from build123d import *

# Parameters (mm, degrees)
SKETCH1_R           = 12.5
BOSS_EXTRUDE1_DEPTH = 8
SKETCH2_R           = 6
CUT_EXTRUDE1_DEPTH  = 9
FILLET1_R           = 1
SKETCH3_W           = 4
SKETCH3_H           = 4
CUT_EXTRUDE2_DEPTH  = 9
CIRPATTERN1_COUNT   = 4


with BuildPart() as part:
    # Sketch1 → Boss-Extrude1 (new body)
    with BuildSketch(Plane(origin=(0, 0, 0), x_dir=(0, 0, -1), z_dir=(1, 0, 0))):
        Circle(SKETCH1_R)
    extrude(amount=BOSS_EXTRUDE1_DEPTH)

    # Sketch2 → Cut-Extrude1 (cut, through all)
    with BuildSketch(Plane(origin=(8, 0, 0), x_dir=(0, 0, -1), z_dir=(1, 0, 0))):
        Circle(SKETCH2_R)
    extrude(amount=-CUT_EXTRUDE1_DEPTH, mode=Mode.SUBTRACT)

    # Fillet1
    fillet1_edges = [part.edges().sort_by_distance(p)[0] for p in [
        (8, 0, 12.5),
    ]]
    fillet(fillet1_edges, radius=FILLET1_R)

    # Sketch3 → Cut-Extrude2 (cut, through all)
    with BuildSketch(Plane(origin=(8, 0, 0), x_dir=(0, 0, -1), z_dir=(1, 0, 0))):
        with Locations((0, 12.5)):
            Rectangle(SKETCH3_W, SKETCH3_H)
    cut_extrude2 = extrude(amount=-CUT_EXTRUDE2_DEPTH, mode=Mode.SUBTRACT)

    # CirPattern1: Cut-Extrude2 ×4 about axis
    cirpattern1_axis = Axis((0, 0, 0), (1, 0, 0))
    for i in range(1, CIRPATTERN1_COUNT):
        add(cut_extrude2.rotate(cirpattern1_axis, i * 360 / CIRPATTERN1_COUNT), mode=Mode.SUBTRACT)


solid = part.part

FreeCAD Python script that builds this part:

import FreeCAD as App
import Part
import Sketcher

V = App.Vector


def edges_at(feature, points):
    """Names of the edges that pass closest to the given points."""
    edges = feature.Shape.Edges
    near = lambda p: min(range(len(edges)), key=lambda i: edges[i].distToShape(Part.Vertex(*p))[0])
    return sorted({f"Edge{near(p) + 1}" for p in points})

doc = App.newDocument("Part")
params = doc.addObject("Spreadsheet::Sheet", "Params")
for row, (alias, value) in enumerate([
    ("sketch1_diameter", "25 mm"),
    ("pad1_length", "8 mm"),
    ("sketch2_diameter", "12 mm"),
    ("fillet_radius", "1 mm"),
    ("sketch3_width", "4 mm"),
], start=1):
    params.set(f"A{row}", alias)
    params.set(f"B{row}", "=" + value)
    params.setAlias(f"B{row}", alias)

body = doc.addObject("PartDesign::Body", "Body")

# Sketch on YZ plane
sketch1 = doc.addObject("Sketcher::SketchObject", "Sketch")
body.addObject(sketch1)
sketch1.AttachmentSupport = (doc.YZ_Plane, [""])
sketch1.MapMode = "FlatFace"
sketch1.addGeometry(Part.Circle(V(0, 0, 0), V(0, 0, 1), 12), False)
sketch1.addConstraint([
    Sketcher.Constraint("Coincident", 0, 3, -1, 1),
    Sketcher.Constraint("Diameter", 0, 25.0),
])
sketch1.setExpression("Constraints[1]", "Params.sketch1_diameter")
pad1 = doc.addObject("PartDesign::Pad", "Pad")
body.addObject(pad1)
pad1.Profile = sketch1
pad1.setExpression("Length", "Params.pad1_length")

# Sketch on YZ plane
sketch2 = doc.addObject("Sketcher::SketchObject", "Sketch001")
body.addObject(sketch2)
sketch2.AttachmentSupport = (doc.YZ_Plane, [""])
sketch2.MapMode = "FlatFace"
sketch2.AttachmentOffset = App.Placement(V(0, 0, 8), App.Rotation())
sketch2.addGeometry(Part.Circle(V(0, 0, 0), V(0, 0, 1), 6), False)
sketch2.addConstraint([
    Sketcher.Constraint("Coincident", 0, 3, -1, 1),
    Sketcher.Constraint("Diameter", 0, 12.0),
])
sketch2.setExpression("Constraints[1]", "Params.sketch2_diameter")
pocket1 = doc.addObject("PartDesign::Pocket", "Pocket")
body.addObject(pocket1)
pocket1.Profile = sketch2
pocket1.Type = "ThroughAll"
doc.recompute()

fillet = doc.addObject("PartDesign::Fillet", "Fillet")
body.addObject(fillet)
fillet.Base = (pocket1, edges_at(pocket1, [(8, 0, 12.5)]))
fillet.setExpression("Radius", "Params.fillet_radius")

# Sketch on YZ plane
sketch3 = doc.addObject("Sketcher::SketchObject", "Sketch002")
body.addObject(sketch3)
sketch3.AttachmentSupport = (doc.YZ_Plane, [""])
sketch3.MapMode = "FlatFace"
sketch3.AttachmentOffset = App.Placement(V(0, 0, 8), App.Rotation())
sketch3.addGeometry([
    Part.LineSegment(V(14.5, 2, 0), V(10.5, 2, 0)),
    Part.LineSegment(V(10.5, 2, 0), V(10.5, -2, 0)),
    Part.LineSegment(V(10.5, -2, 0), V(14.5, -2, 0)),
    Part.LineSegment(V(14.5, -2, 0), V(14.5, 2, 0)),
], False)
sketch3.addConstraint([
    Sketcher.Constraint("Coincident", 0, 2, 1, 1),
    Sketcher.Constraint("Coincident", 1, 2, 2, 1),
    Sketcher.Constraint("Coincident", 2, 2, 3, 1),
    Sketcher.Constraint("Coincident", 3, 2, 0, 1),
    Sketcher.Constraint("Horizontal", 0),
    Sketcher.Constraint("Vertical", 1),
    Sketcher.Constraint("Horizontal", 2),
    Sketcher.Constraint("Vertical", 3),
    Sketcher.Constraint("Equal", 2, 1),
    Sketcher.Constraint("DistanceX", 0, 2, 0, 1, 4.0),
    Sketcher.Constraint("DistanceY", -1, 1, 0, 2, 2.0),
    Sketcher.Constraint("DistanceX", -1, 1, 0, 2, 10.5),
])
sketch3.setExpression("Constraints[9]", "Params.sketch3_width")
pocket2 = doc.addObject("PartDesign::Pocket", "Pocket001")
body.addObject(pocket2)
pocket2.Profile = sketch3
pocket2.Type = "ThroughAll"
doc.recompute()

polarpattern = doc.addObject("PartDesign::PolarPattern", "PolarPattern")
body.addObject(polarpattern)
polarpattern.Originals = [pocket2]
polarpattern.Axis = (doc.X_Axis, [""])
polarpattern.Angle = 360
polarpattern.Occurrences = 4
body.Tip = polarpattern

doc.recompute()
